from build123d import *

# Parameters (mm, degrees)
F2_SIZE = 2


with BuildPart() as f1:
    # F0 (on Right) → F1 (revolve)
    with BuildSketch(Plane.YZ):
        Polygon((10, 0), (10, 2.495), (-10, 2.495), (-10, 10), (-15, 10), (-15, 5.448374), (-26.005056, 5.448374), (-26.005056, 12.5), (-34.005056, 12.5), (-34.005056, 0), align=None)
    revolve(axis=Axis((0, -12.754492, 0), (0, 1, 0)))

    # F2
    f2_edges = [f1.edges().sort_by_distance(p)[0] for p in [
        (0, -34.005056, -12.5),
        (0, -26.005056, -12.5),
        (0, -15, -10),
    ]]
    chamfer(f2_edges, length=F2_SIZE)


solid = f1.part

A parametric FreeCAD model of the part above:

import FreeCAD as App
import Part
import Sketcher

V = App.Vector
Q = App.Units.Quantity


def edges_at(feature, points):
    """Names of the edges that pass closest to the given points."""
    edges = feature.Shape.Edges
    near = lambda p: min(range(len(edges)), key=lambda i: edges[i].distToShape(Part.Vertex(*p))[0])
    return sorted({f"Edge{near(p) + 1}" for p in points})

doc = App.newDocument("Part")
body = doc.addObject("PartDesign::Body", "Body")

sketch1 = body.newObject("Sketcher::SketchObject", "Sketch")
sketch1.AttachmentSupport = (doc.getObject("YZ_Plane"), [""])
sketch1.MapMode = "FlatFace"
sketch1.addGeometry(Part.LineSegment(V(10, 0, 0), V(10, 2.495, 0)), False)
sketch1.addGeometry(Part.LineSegment(V(10, 2.495, 0), V(-10, 2.495, 0)), False)
sketch1.addGeometry(Part.LineSegment(V(-10, 2.495, 0), V(-10, 10, 0)), False)
sketch1.addGeometry(Part.LineSegment(V(-10, 10, 0), V(-15, 10, 0)), False)
sketch1.addGeometry(Part.LineSegment(V(-15, 10, 0), V(-15, 5.448374, 0)), False)
sketch1.addGeometry(Part.LineSegment(V(-15, 5.448374, 0), V(-26.005056, 5.448374, 0)), False)
sketch1.addGeometry(Part.LineSegment(V(-26.005056, 5.448374, 0), V(-26.005056, 12.5, 0)), False)
sketch1.addGeometry(Part.LineSegment(V(-26.005056, 12.5, 0), V(-34.005056, 12.5, 0)), False)
sketch1.addGeometry(Part.LineSegment(V(-34.005056, 12.5, 0), V(-34.005056, 0, 0)), False)
sketch1.addGeometry(Part.LineSegment(V(-34.005056, 0, 0), V(10, 0, 0)), False)
sketch1.addConstraint(Sketcher.Constraint("Coincident", 0, 2, 1, 1))
sketch1.addConstraint(Sketcher.Constraint("Coincident", 1, 2, 2, 1))
sketch1.addConstraint(Sketcher.Constraint("Coincident", 2, 2, 3, 1))
sketch1.addConstraint(Sketcher.Constraint("Coincident", 3, 2, 4, 1))
sketch1.addConstraint(Sketcher.Constraint("Coincident", 4, 2, 5, 1))
sketch1.addConstraint(Sketcher.Constraint("Coincident", 5, 2, 6, 1))
sketch1.addConstraint(Sketcher.Constraint("Coincident", 6, 2, 7, 1))
sketch1.addConstraint(Sketcher.Constraint("Coincident", 7, 2, 8, 1))
sketch1.addConstraint(Sketcher.Constraint("Coincident", 8, 2, 9, 1))
sketch1.addConstraint(Sketcher.Constraint("Coincident", 9, 2, 0, 1))
sketch1.addConstraint(Sketcher.Constraint("Vertical", 0))
sketch1.addConstraint(Sketcher.Constraint("Horizontal", 1))
sketch1.addConstraint(Sketcher.Constraint("Vertical", 2))
sketch1.addConstraint(Sketcher.Constraint("Horizontal", 3))
sketch1.addConstraint(Sketcher.Constraint("Vertical", 4))
sketch1.addConstraint(Sketcher.Constraint("Horizontal", 5))
sketch1.addConstraint(Sketcher.Constraint("Vertical", 6))
sketch1.addConstraint(Sketcher.Constraint("Horizontal", 7))
sketch1.addConstraint(Sketcher.Constraint("Vertical", 8))
sketch1.addConstraint(Sketcher.Constraint("Horizontal", 9))
sketch1.addConstraint(Sketcher.Constraint("PointOnObject", 8, 2, -1))
sketch1.addConstraint(Sketcher.Constraint("DistanceX", 1, 2, 1, 1, Q("20 mm")))
sketch1.addConstraint(Sketcher.Constraint("DistanceX", 3, 2, 3, 1, Q("5 mm")))
sketch1.addConstraint(Sketcher.Constraint("DistanceX", 7, 2, 7, 1, Q("8 mm")))
sketch1.addConstraint(Sketcher.Constraint("DistanceY", 8, 2, 8, 1, Q("12.5 mm")))
sketch1.addConstraint(Sketcher.Constraint("DistanceX", -1, 1, 0, 2, Q("10 mm")))
sketch1.addConstraint(Sketcher.Constraint("DistanceY", -1, 1, 2, 2, Q("10 mm")))
sketch1.addConstraint(Sketcher.Constraint("DistanceY", 0, 1, 0, 2, Q("2.495 mm")))
sketch1.addConstraint(Sketcher.Constraint("DistanceX", 5, 2, 5, 1, Q("11.005056 mm")))
sketch1.addConstraint(Sketcher.Constraint("DistanceY", 4, 2, 4, 1, Q("4.551626 mm")))
revolution = body.newObject("PartDesign::Revolution", "Revolution")
revolution.Profile = sketch1
revolution.ReferenceAxis = (sketch1, ["H_Axis"])
revolution.Angle = 360
doc.recompute()

chamfer = body.newObject("PartDesign::Chamfer", "Chamfer")
chamfer.Base = (revolution, edges_at(revolution, [(0, -34.005, -12.5), (0, -26.005, -12.5), (0, -15, -10)]))
chamfer.Size = 2

doc.recompute()
